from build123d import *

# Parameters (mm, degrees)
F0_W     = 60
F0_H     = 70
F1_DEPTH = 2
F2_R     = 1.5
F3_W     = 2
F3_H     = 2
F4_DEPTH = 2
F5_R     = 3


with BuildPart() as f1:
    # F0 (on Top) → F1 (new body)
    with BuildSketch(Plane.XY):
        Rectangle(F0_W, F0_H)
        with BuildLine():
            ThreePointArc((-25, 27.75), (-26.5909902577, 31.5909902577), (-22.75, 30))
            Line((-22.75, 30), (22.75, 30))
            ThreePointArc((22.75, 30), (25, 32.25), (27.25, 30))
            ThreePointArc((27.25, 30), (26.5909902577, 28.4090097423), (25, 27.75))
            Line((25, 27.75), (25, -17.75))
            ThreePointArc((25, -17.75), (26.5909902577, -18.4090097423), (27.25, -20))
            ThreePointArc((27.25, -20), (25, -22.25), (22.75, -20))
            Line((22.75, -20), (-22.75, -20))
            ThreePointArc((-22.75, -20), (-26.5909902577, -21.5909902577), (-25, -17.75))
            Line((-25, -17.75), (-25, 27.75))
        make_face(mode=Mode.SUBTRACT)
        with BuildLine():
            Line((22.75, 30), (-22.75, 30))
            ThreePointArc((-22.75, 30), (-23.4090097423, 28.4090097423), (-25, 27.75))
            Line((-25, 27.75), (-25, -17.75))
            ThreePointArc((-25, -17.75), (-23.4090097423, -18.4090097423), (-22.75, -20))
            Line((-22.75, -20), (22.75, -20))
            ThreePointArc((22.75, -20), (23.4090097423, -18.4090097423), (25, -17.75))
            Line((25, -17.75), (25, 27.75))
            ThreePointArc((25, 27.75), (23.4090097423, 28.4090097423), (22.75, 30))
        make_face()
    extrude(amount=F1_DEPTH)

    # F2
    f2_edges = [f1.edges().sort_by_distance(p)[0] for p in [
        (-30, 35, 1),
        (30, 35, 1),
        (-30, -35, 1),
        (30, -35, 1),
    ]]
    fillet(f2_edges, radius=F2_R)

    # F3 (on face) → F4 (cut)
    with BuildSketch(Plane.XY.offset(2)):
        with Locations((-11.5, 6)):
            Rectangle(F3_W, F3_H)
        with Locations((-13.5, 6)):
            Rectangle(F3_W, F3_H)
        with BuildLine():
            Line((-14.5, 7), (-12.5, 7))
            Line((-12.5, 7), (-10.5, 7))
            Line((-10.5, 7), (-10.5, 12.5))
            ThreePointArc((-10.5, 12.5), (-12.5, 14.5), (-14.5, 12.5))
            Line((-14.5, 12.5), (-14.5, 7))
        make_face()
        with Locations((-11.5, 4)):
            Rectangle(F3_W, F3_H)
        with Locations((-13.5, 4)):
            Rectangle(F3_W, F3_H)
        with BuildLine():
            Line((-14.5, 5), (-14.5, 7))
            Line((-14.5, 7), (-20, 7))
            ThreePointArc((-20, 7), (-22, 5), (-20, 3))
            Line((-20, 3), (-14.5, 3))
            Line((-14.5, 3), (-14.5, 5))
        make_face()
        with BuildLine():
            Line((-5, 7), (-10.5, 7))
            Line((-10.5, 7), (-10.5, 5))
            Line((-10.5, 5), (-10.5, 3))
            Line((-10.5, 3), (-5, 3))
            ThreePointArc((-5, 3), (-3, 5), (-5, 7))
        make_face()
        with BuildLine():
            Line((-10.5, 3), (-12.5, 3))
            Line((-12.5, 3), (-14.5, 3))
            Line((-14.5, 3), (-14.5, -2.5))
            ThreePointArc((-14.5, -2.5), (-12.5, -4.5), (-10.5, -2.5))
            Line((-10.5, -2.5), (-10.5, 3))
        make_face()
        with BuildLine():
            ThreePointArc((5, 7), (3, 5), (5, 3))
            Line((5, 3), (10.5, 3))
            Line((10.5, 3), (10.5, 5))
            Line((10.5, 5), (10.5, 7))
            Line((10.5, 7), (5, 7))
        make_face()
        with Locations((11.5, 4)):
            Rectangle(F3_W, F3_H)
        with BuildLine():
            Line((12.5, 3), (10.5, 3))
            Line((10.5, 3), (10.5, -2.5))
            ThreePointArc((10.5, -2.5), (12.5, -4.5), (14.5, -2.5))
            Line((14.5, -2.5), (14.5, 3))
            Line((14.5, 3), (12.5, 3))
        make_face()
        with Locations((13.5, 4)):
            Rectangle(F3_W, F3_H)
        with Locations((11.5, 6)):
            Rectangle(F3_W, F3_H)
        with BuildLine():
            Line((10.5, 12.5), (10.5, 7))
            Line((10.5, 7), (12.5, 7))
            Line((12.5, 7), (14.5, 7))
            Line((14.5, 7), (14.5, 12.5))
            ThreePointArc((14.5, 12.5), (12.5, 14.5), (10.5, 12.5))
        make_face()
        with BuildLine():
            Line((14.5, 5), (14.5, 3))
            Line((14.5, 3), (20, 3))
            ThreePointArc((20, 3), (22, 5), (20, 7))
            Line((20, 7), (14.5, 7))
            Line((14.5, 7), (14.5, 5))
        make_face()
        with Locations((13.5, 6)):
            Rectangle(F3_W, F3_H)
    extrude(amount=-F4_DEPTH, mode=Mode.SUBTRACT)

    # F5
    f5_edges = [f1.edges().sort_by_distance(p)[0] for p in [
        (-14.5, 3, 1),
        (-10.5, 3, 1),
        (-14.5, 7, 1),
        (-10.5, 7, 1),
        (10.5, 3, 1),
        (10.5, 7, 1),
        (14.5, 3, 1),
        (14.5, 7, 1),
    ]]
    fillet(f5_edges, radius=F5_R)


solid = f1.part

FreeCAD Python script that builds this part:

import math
import FreeCAD as App
import Part
import Sketcher
Q = App.Units.Quantity


def edges_at(feature, points):
    """Names of the edges that pass closest to the given points."""
    edges = feature.Shape.Edges
    near = lambda p: min(range(len(edges)), key=lambda i: edges[i].distToShape(Part.Vertex(*p))[0])
    return sorted({f"Edge{near(p) + 1}" for p in points})


def add_polygon(sketch, points):
    """Adds a closed chain of lines whose ends are joined by coincident constraints."""
    first, n = sketch.GeometryCount, len(points)
    for a, b in zip(points, points[1:] + points[:1]):
        sketch.addGeometry(Part.LineSegment(App.Vector(*a, 0), App.Vector(*b, 0)), False)
    for i in range(n):
        sketch.addConstraint(Sketcher.Constraint("Coincident", first + i, 2, first + (i + 1) % n, 1))

doc = App.newDocument("Part")
params = doc.addObject("Spreadsheet::Sheet", "Params")
for row, (alias, value) in enumerate([
    ("sketch1_width", "60 mm"),
    ("sketch1_height", "70 mm"),
    ("sketch1_radius", "2.25 mm"),
    ("pad1_length", "2 mm"),
    ("fillet_radius", "1.5 mm"),
    ("sketch2_radius", "2 mm"),
    ("sketch2_width", "5.5 mm"),
    ("pocket1_length", "2 mm"),
    ("fillet2_radius", "3 mm"),
], start=1):
    params.set(f"A{row}", alias)
    params.set(f"B{row}", "=" + value)
    params.setAlias(f"B{row}", alias)

body = doc.addObject("PartDesign::Body", "Body")

# Sketch on XY plane
sketch1 = body.newObject("Sketcher::SketchObject", "Sketch")
sketch1.AttachmentSupport = (doc.getObject("XY_Plane"), [""])
sketch1.MapMode = "FlatFace"
add_polygon(sketch1, [(-30, 35), (-30, -35), (30, -35), (30, 35)])  # lines 0-3
sketch1.addGeometry(Part.ArcOfCircle(Part.Circle(App.Vector(-25, -20, 0), App.Vector(0, 0, 1), 2.2), math.radians(90), math.radians(360)), False)  # 4
sketch1.addGeometry(Part.ArcOfCircle(Part.Circle(App.Vector(-25, -20, 0), App.Vector(0, 0, 1), 2.2), math.radians(0), math.radians(90)), False)  # 5
sketch1.addGeometry(Part.ArcOfCircle(Part.Circle(App.Vector(25, -20, 0), App.Vector(0, 0, 1), 2.2), math.radians(180), math.radians(360)), False)  # 6
sketch1.addGeometry(Part.ArcOfCircle(Part.Circle(App.Vector(25, -20, 0), App.Vector(0, 0, 1), 2.2), math.radians(90), math.radians(180)), False)  # 7
sketch1.addGeometry(Part.ArcOfCircle(Part.Circle(App.Vector(25, -20, 0), App.Vector(0, 0, 1), 2.2), math.radians(0), math.radians(90)), False)  # 8
sketch1.addGeometry(Part.ArcOfCircle(Part.Circle(App.Vector(25, 30, 0), App.Vector(0, 0, 1), 2.2), math.radians(-90), math.radians(0)), False)  # 9
sketch1.addGeometry(Part.ArcOfCircle(Part.Circle(App.Vector(25, 30, 0), App.Vector(0, 0, 1), 2.2), math.radians(180), math.radians(270)), False)  # 10
sketch1.addGeometry(Part.ArcOfCircle(Part.Circle(App.Vector(25, 30, 0), App.Vector(0, 0, 1), 2.2), math.radians(0), math.radians(180)), False)  # 11
sketch1.addGeometry(Part.ArcOfCircle(Part.Circle(App.Vector(-25, 30, 0), App.Vector(0, 0, 1), 2.2), math.radians(0), math.radians(270)), False)  # 12
sketch1.addGeometry(Part.ArcOfCircle(Part.Circle(App.Vector(-25, 30, 0), App.Vector(0, 0, 1), 2.2), math.radians(-90), math.radians(0)), False)  # 13
sketch1.addConstraint(Sketcher.Constraint("Tangent", 4, 1, 5, 2))
sketch1.addConstraint(Sketcher.Constraint("Coincident", 5, 1, 4, 2))
sketch1.addConstraint(Sketcher.Constraint("Tangent", 6, 1, 7, 2))
sketch1.addConstraint(Sketcher.Constraint("Tangent", 7, 1, 8, 2))
sketch1.addConstraint(Sketcher.Constraint("Tangent", 8, 1, 6, 2))
sketch1.addConstraint(Sketcher.Constraint("Tangent", 9, 1, 10, 2))
sketch1.addConstraint(Sketcher.Constraint("Tangent", 10, 1, 11, 2))
sketch1.addConstraint(Sketcher.Constraint("Tangent", 11, 1, 9, 2))
sketch1.addConstraint(Sketcher.Constraint("Tangent", 12, 1, 13, 2))
sketch1.addConstraint(Sketcher.Constraint("Coincident", 13, 1, 12, 2))
sketch1.addConstraint(Sketcher.Constraint("Vertical", 0))
sketch1.addConstraint(Sketcher.Constraint("Horizontal", 1))
sketch1.addConstraint(Sketcher.Constraint("Vertical", 2))
sketch1.addConstraint(Sketcher.Constraint("Horizontal", 3))
sketch1.addConstraint(Sketcher.Constraint("Equal", 5, 6))
sketch1.addConstraint(Sketcher.Constraint("Equal", 8, 9))
sketch1.addConstraint(Sketcher.Constraint("Equal", 11, 12))
sketch1.addConstraint(Sketcher.Constraint("Symmetric", 0, 2, 2, 2, -1, 1))
sketch1.addConstraint(Sketcher.Constraint("Symmetric", 4, 3, 6, 3, -2))
sketch1.addConstraint(Sketcher.Constraint("Symmetric", 9, 3, 12, 3, -2))
sketch1.addConstraint(Sketcher.Constraint("Horizontal", 8, 3, 5, 1))
sketch1.addConstraint(Sketcher.Constraint("Horizontal", 5, 1, 6, 1))
sketch1.addConstraint(Sketcher.Constraint("Horizontal", 6, 1, 8, 1))
sketch1.addConstraint(Sketcher.Constraint("Horizontal", 13, 3, 10, 1))
sketch1.addConstraint(Sketcher.Constraint("Horizontal", 10, 1, 11, 1))
sketch1.addConstraint(Sketcher.Constraint("Horizontal", 11, 1, 12, 1))
sketch1.addConstraint(Sketcher.Constraint("Vertical", 8, 3, 9, 3))
sketch1.addConstraint(Sketcher.Constraint("Vertical", 13, 3, 4, 1))
sketch1.addConstraint(Sketcher.Constraint("Vertical", 11, 3, 7, 1))
sketch1.addConstraint(Sketcher.Constraint("Vertical", 7, 1, 9, 1))
sketch1.addConstraint(Sketcher.Constraint("Vertical", 4, 1, 13, 1))
sketch1.addConstraint(Sketcher.Constraint("DistanceX", 1, 1, 1, 2, Q("60 mm")))
sketch1.addConstraint(Sketcher.Constraint("DistanceY", 0, 2, 0, 1, Q("70 mm")))
sketch1.addConstraint(Sketcher.Constraint("Radius", 4, Q("2.25 mm")))
sketch1.addConstraint(Sketcher.Constraint("DistanceX", 4, 3, -1, 1, Q("25 mm")))
sketch1.addConstraint(Sketcher.Constraint("DistanceY", 4, 3, -1, 1, Q("20 mm")))
sketch1.addConstraint(Sketcher.Constraint("DistanceY", -1, 1, 9, 3, Q("30 mm")))
sketch1.setExpression("Constraints[35]", "Params.sketch1_width")
sketch1.setExpression("Constraints[36]", "Params.sketch1_height")
sketch1.setExpression("Constraints[37]", "Params.sketch1_radius")
pad1 = body.newObject("PartDesign::Pad", "Pad")
pad1.Profile = sketch1
pad1.setExpression("Length", "Params.pad1_length")
doc.recompute()

fillet = body.newObject("PartDesign::Fillet", "Fillet")
fillet.Base = (pad1, edges_at(pad1, [
    (-30, 35, 1),
    (30, 35, 1),
    (-30, -35, 1),
    (30, -35, 1),
]))
fillet.setExpression("Radius", "Params.fillet_radius")

# Sketch on XY plane
sketch2 = body.newObject("Sketcher::SketchObject", "Sketch001")
sketch2.AttachmentSupport = (doc.getObject("XY_Plane"), [""])
sketch2.MapMode = "FlatFace"
sketch2.AttachmentOffset = App.Placement(App.Vector(0, 0, 2), App.Rotation())
sketch2.addGeometry(Part.ArcOfCircle(Part.Circle(App.Vector(-12.5, 12.5, 0), App.Vector(0, 0, 1), 2), math.radians(0), math.radians(180)), False)
sketch2.addGeometry(Part.LineSegment(App.Vector(-14.5, 12.5, 0), App.Vector(-14.5, 7, 0)), False)
sketch2.addGeometry(Part.LineSegment(App.Vector(-14.5, 7, 0), App.Vector(-20, 7, 0)), False)
sketch2.addGeometry(Part.ArcOfCircle(Part.Circle(App.Vector(-20, 5, 0), App.Vector(0, 0, 1), 2), math.radians(90), math.radians(270)), False)
sketch2.addGeometry(Part.LineSegment(App.Vector(-20, 3, 0), App.Vector(-14.5, 3, 0)), False)
sketch2.addGeometry(Part.LineSegment(App.Vector(-14.5, 3, 0), App.Vector(-14.5, -2.5, 0)), False)
sketch2.addGeometry(Part.ArcOfCircle(Part.Circle(App.Vector(-12.5, -2.5, 0), App.Vector(0, 0, 1), 2), math.radians(180), math.radians(360)), False)
sketch2.addGeometry(Part.LineSegment(App.Vector(-10.5, -2.5, 0), App.Vector(-10.5, 3, 0)), False)
sketch2.addGeometry(Part.LineSegment(App.Vector(-10.5, 3, 0), App.Vector(-5, 3, 0)), False)
sketch2.addGeometry(Part.ArcOfCircle(Part.Circle(App.Vector(-5, 5, 0), App.Vector(0, 0, 1), 2), math.radians(-90), math.radians(90)), False)
sketch2.addGeometry(Part.LineSegment(App.Vector(-5, 7, 0), App.Vector(-10.5, 7, 0)), False)
sketch2.addGeometry(Part.LineSegment(App.Vector(-10.5, 7, 0), App.Vector(-10.5, 12.5, 0)), False)
sketch2.addGeometry(Part.LineSegment(App.Vector(20, 7, 0), App.Vector(14.5, 7, 0)), False)
sketch2.addGeometry(Part.LineSegment(App.Vector(14.5, 7, 0), App.Vector(14.5, 12.5, 0)), False)
sketch2.addGeometry(Part.ArcOfCircle(Part.Circle(App.Vector(12.5, 12.5, 0), App.Vector(0, 0, 1), 2), math.radians(0), math.radians(180)), False)
sketch2.addGeometry(Part.LineSegment(App.Vector(10.5, 12.5, 0), App.Vector(10.5, 7, 0)), False)
sketch2.addGeometry(Part.LineSegment(App.Vector(10.5, 7, 0), App.Vector(5, 7, 0)), False)
sketch2.addGeometry(Part.ArcOfCircle(Part.Circle(App.Vector(5, 5, 0), App.Vector(0, 0, 1), 2), math.radians(90), math.radians(270)), False)
sketch2.addGeometry(Part.LineSegment(App.Vector(5, 3, 0), App.Vector(10.5, 3, 0)), False)
sketch2.addGeometry(Part.LineSegment(App.Vector(10.5, 3, 0), App.Vector(10.5, -2.5, 0)), False)
sketch2.addGeometry(Part.ArcOfCircle(Part.Circle(App.Vector(12.5, -2.5, 0), App.Vector(0, 0, 1), 2), math.radians(180), math.radians(360)), False)
sketch2.addGeometry(Part.LineSegment(App.Vector(14.5, -2.5, 0), App.Vector(14.5, 3, 0)), False)
sketch2.addGeometry(Part.LineSegment(App.Vector(14.5, 3, 0), App.Vector(20, 3, 0)), False)
sketch2.addGeometry(Part.ArcOfCircle(Part.Circle(App.Vector(20, 5, 0), App.Vector(0, 0, 1), 2), math.radians(-90), math.radians(90)), False)
sketch2.addConstraint(Sketcher.Constraint("Tangent", 0, 2, 1, 1))
sketch2.addConstraint(Sketcher.Constraint("Coincident", 1, 2, 2, 1))
sketch2.addConstraint(Sketcher.Constraint("Tangent", 2, 2, 3, 1))
sketch2.addConstraint(Sketcher.Constraint("Tangent", 3, 2, 4, 1))
sketch2.addConstraint(Sketcher.Constraint("Coincident", 4, 2, 5, 1))
sketch2.addConstraint(Sketcher.Constraint("Tangent", 5, 2, 6, 1))
sketch2.addConstraint(Sketcher.Constraint("Tangent", 6, 2, 7, 1))
sketch2.addConstraint(Sketcher.Constraint("Coincident", 7, 2, 8, 1))
sketch2.addConstraint(Sketcher.Constraint("Tangent", 8, 2, 9, 1))
sketch2.addConstraint(Sketcher.Constraint("Tangent", 9, 2, 10, 1))
sketch2.addConstraint(Sketcher.Constraint("Coincident", 10, 2, 11, 1))
sketch2.addConstraint(Sketcher.Constraint("Tangent", 11, 2, 0, 1))
sketch2.addConstraint(Sketcher.Constraint("Coincident", 12, 2, 13, 1))
sketch2.addConstraint(Sketcher.Constraint("Tangent", 13, 2, 14, 1))
sketch2.addConstraint(Sketcher.Constraint("Tangent", 14, 2, 15, 1))
sketch2.addConstraint(Sketcher.Constraint("Coincident", 15, 2, 16, 1))
sketch2.addConstraint(Sketcher.Constraint("Tangent", 16, 2, 17, 1))
sketch2.addConstraint(Sketcher.Constraint("Tangent", 17, 2, 18, 1))
sketch2.addConstraint(Sketcher.Constraint("Coincident", 18, 2, 19, 1))
sketch2.addConstraint(Sketcher.Constraint("Tangent", 19, 2, 20, 1))
sketch2.addConstraint(Sketcher.Constraint("Tangent", 20, 2, 21, 1))
sketch2.addConstraint(Sketcher.Constraint("Coincident", 21, 2, 22, 1))
sketch2.addConstraint(Sketcher.Constraint("Tangent", 22, 2, 23, 1))
sketch2.addConstraint(Sketcher.Constraint("Tangent", 23, 2, 12, 1))
sketch2.addConstraint(Sketcher.Constraint("Vertical", 1))
sketch2.addConstraint(Sketcher.Constraint("Horizontal", 2))
sketch2.addConstraint(Sketcher.Constraint("Horizontal", 4))
sketch2.addConstraint(Sketcher.Constraint("Vertical", 5))
sketch2.addConstraint(Sketcher.Constraint("Vertical", 7))
sketch2.addConstraint(Sketcher.Constraint("Horizontal", 8))
sketch2.addConstraint(Sketcher.Constraint("Horizontal", 10))
sketch2.addConstraint(Sketcher.Constraint("Vertical", 11))
sketch2.addConstraint(Sketcher.Constraint("Horizontal", 12))
sketch2.addConstraint(Sketcher.Constraint("Vertical", 13))
sketch2.addConstraint(Sketcher.Constraint("Vertical", 15))
sketch2.addConstraint(Sketcher.Constraint("Horizontal", 16))
sketch2.addConstraint(Sketcher.Constraint("Horizontal", 18))
sketch2.addConstraint(Sketcher.Constraint("Vertical", 19))
sketch2.addConstraint(Sketcher.Constraint("Vertical", 21))
sketch2.addConstraint(Sketcher.Constraint("Horizontal", 22))
sketch2.addConstraint(Sketcher.Constraint("Equal", 0, 3))
sketch2.addConstraint(Sketcher.Constraint("Equal", 3, 6))
sketch2.addConstraint(Sketcher.Constraint("Equal", 6, 9))
sketch2.addConstraint(Sketcher.Constraint("Equal", 9, 14))
sketch2.addConstraint(Sketcher.Constraint("Equal", 14, 17))
sketch2.addConstraint(Sketcher.Constraint("Equal", 17, 20))
sketch2.addConstraint(Sketcher.Constraint("Equal", 20, 23))
sketch2.addConstraint(Sketcher.Constraint("Symmetric", 0, 3, 14, 3, -2))
sketch2.addConstraint(Sketcher.Constraint("Symmetric", 9, 3, 17, 3, -2))
sketch2.addConstraint(Sketcher.Constraint("Symmetric", 6, 3, 20, 3, -2))
sketch2.addConstraint(Sketcher.Constraint("Symmetric", 3, 3, 23, 3, -2))
sketch2.addConstraint(Sketcher.Constraint("Horizontal", 3, 3, 9, 3))
sketch2.addConstraint(Sketcher.Constraint("Vertical", 0, 3, 6, 3))
sketch2.addConstraint(Sketcher.Constraint("Equal", 4, 8))
sketch2.addConstraint(Sketcher.Constraint("Equal", 22, 1))
sketch2.addConstraint(Sketcher.Constraint("Equal", 1, 5))
sketch2.addConstraint(Sketcher.Constraint("Radius", 0, Q("2 mm")))
sketch2.addConstraint(Sketcher.Constraint("DistanceX", 2, 2, 2, 1, Q("5.5 mm")))
sketch2.addConstraint(Sketcher.Constraint("DistanceX", 3, 3, -1, 1, Q("20 mm")))
sketch2.addConstraint(Sketcher.Constraint("DistanceY", -1, 1, 3, 3, Q("5 mm")))
sketch2.setExpression("Constraints[56]", "Params.sketch2_radius")
sketch2.setExpression("Constraints[57]", "Params.sketch2_width")
pocket1 = body.newObject("PartDesign::Pocket", "Pocket")
pocket1.Profile = sketch2
pocket1.setExpression("Length", "Params.pocket1_length")
doc.recompute()

fillet2 = body.newObject("PartDesign::Fillet", "Fillet001")
fillet2.Base = (pocket1, edges_at(pocket1, [
    (-14.5, 3, 1),
    (-10.5, 3, 1),
    (-14.5, 7, 1),
    (-10.5, 7, 1),
    (10.5, 3, 1),
    (10.5, 7, 1),
    (14.5, 3, 1),
    (14.5, 7, 1),
]))
fillet2.setExpression("Radius", "Params.fillet2_radius")

doc.recompute()
